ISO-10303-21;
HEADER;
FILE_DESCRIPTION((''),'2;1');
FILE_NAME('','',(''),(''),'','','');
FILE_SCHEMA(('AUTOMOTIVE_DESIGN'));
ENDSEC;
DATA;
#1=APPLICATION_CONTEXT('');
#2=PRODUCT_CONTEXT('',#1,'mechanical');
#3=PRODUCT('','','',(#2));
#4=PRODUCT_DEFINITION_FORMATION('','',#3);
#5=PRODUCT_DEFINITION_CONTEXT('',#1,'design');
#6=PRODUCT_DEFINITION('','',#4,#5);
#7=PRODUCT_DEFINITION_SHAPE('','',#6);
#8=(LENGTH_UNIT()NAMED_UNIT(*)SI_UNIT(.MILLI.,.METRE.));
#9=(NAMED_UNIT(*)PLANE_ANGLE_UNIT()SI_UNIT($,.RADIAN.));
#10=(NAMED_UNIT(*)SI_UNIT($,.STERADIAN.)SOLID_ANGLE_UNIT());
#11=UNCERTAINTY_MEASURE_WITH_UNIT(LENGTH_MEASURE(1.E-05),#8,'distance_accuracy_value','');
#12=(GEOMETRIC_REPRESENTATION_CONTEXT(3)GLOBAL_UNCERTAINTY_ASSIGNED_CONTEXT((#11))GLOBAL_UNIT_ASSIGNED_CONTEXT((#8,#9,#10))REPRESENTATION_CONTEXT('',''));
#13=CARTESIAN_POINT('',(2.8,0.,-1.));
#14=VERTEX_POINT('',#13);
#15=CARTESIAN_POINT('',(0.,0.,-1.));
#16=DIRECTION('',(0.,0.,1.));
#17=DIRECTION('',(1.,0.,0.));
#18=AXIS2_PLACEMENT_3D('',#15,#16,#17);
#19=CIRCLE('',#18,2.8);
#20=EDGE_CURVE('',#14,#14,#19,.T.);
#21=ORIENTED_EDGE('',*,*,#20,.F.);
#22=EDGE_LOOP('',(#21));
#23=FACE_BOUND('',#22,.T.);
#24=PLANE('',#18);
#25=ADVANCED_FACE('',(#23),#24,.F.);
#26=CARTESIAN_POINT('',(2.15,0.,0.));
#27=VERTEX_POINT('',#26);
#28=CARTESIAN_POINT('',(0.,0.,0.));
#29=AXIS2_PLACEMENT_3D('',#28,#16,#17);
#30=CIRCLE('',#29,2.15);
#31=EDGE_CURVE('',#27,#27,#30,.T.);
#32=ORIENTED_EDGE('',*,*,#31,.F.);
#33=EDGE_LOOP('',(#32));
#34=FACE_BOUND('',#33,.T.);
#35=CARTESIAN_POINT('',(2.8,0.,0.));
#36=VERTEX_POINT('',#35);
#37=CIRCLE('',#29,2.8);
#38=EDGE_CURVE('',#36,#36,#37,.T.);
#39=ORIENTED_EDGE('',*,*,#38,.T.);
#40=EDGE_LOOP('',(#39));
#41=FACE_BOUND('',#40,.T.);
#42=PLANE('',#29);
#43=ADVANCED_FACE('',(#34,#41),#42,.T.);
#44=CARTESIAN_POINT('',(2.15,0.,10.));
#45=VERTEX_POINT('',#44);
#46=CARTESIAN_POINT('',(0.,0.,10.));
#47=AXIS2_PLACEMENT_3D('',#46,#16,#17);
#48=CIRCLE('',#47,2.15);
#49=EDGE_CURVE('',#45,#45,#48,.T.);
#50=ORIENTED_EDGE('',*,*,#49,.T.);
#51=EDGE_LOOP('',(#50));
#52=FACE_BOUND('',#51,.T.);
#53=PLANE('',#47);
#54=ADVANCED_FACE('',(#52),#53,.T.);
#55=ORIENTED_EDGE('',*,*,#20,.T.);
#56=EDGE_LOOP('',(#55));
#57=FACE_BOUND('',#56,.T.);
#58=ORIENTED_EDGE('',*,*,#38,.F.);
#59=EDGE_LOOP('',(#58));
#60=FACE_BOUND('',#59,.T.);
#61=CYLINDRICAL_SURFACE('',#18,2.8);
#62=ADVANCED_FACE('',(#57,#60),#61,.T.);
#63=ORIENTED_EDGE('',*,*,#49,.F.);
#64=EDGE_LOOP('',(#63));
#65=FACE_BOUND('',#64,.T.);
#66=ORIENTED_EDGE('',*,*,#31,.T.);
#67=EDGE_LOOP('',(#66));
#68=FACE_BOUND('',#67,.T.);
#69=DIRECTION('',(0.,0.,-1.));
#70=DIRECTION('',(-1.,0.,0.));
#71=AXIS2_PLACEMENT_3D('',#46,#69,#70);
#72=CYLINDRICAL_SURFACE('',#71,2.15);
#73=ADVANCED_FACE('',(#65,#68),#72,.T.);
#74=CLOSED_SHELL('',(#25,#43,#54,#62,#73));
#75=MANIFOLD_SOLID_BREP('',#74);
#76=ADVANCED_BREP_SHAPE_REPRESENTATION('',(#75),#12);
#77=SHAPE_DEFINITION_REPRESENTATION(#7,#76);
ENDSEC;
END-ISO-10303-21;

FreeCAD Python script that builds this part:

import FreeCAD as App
import Part
import Sketcher

V = App.Vector
Q = App.Units.Quantity

doc = App.newDocument("Part")
body = doc.addObject("PartDesign::Body", "Body")

# Sketch on XY plane
sketch1 = body.newObject("Sketcher::SketchObject", "Sketch")
sketch1.AttachmentSupport = (doc.getObject("XY_Plane"), [""])
sketch1.MapMode = "FlatFace"
sketch1.addGeometry(Part.Circle(V(0, 0, 0), V(0, 0, 1), 2.1), False)
sketch1.addConstraint([
    Sketcher.Constraint("Coincident", 0, 3, -1, 1),
    Sketcher.Constraint("Diameter", 0, Q("4.3 mm")),
])
pad1 = body.newObject("PartDesign::Pad", "Pad")
pad1.Profile = sketch1
pad1.Length = 10

# Sketch on XY plane
sketch2 = body.newObject("Sketcher::SketchObject", "Sketch001")
sketch2.AttachmentSupport = (doc.getObject("XY_Plane"), [""])
sketch2.MapMode = "FlatFace"
sketch2.AttachmentOffset = App.Placement(V(0, 0, -1), App.Rotation())
sketch2.addGeometry(Part.Circle(V(0, 0, 0), V(0, 0, 1), 2.8), False)
sketch2.addConstraint([
    Sketcher.Constraint("Coincident", 0, 3, -1, 1),
    Sketcher.Constraint("Diameter", 0, Q("5.6 mm")),
])
pad2 = body.newObject("PartDesign::Pad", "Pad001")
pad2.Profile = sketch2
pad2.Length = 1

doc.recompute()
